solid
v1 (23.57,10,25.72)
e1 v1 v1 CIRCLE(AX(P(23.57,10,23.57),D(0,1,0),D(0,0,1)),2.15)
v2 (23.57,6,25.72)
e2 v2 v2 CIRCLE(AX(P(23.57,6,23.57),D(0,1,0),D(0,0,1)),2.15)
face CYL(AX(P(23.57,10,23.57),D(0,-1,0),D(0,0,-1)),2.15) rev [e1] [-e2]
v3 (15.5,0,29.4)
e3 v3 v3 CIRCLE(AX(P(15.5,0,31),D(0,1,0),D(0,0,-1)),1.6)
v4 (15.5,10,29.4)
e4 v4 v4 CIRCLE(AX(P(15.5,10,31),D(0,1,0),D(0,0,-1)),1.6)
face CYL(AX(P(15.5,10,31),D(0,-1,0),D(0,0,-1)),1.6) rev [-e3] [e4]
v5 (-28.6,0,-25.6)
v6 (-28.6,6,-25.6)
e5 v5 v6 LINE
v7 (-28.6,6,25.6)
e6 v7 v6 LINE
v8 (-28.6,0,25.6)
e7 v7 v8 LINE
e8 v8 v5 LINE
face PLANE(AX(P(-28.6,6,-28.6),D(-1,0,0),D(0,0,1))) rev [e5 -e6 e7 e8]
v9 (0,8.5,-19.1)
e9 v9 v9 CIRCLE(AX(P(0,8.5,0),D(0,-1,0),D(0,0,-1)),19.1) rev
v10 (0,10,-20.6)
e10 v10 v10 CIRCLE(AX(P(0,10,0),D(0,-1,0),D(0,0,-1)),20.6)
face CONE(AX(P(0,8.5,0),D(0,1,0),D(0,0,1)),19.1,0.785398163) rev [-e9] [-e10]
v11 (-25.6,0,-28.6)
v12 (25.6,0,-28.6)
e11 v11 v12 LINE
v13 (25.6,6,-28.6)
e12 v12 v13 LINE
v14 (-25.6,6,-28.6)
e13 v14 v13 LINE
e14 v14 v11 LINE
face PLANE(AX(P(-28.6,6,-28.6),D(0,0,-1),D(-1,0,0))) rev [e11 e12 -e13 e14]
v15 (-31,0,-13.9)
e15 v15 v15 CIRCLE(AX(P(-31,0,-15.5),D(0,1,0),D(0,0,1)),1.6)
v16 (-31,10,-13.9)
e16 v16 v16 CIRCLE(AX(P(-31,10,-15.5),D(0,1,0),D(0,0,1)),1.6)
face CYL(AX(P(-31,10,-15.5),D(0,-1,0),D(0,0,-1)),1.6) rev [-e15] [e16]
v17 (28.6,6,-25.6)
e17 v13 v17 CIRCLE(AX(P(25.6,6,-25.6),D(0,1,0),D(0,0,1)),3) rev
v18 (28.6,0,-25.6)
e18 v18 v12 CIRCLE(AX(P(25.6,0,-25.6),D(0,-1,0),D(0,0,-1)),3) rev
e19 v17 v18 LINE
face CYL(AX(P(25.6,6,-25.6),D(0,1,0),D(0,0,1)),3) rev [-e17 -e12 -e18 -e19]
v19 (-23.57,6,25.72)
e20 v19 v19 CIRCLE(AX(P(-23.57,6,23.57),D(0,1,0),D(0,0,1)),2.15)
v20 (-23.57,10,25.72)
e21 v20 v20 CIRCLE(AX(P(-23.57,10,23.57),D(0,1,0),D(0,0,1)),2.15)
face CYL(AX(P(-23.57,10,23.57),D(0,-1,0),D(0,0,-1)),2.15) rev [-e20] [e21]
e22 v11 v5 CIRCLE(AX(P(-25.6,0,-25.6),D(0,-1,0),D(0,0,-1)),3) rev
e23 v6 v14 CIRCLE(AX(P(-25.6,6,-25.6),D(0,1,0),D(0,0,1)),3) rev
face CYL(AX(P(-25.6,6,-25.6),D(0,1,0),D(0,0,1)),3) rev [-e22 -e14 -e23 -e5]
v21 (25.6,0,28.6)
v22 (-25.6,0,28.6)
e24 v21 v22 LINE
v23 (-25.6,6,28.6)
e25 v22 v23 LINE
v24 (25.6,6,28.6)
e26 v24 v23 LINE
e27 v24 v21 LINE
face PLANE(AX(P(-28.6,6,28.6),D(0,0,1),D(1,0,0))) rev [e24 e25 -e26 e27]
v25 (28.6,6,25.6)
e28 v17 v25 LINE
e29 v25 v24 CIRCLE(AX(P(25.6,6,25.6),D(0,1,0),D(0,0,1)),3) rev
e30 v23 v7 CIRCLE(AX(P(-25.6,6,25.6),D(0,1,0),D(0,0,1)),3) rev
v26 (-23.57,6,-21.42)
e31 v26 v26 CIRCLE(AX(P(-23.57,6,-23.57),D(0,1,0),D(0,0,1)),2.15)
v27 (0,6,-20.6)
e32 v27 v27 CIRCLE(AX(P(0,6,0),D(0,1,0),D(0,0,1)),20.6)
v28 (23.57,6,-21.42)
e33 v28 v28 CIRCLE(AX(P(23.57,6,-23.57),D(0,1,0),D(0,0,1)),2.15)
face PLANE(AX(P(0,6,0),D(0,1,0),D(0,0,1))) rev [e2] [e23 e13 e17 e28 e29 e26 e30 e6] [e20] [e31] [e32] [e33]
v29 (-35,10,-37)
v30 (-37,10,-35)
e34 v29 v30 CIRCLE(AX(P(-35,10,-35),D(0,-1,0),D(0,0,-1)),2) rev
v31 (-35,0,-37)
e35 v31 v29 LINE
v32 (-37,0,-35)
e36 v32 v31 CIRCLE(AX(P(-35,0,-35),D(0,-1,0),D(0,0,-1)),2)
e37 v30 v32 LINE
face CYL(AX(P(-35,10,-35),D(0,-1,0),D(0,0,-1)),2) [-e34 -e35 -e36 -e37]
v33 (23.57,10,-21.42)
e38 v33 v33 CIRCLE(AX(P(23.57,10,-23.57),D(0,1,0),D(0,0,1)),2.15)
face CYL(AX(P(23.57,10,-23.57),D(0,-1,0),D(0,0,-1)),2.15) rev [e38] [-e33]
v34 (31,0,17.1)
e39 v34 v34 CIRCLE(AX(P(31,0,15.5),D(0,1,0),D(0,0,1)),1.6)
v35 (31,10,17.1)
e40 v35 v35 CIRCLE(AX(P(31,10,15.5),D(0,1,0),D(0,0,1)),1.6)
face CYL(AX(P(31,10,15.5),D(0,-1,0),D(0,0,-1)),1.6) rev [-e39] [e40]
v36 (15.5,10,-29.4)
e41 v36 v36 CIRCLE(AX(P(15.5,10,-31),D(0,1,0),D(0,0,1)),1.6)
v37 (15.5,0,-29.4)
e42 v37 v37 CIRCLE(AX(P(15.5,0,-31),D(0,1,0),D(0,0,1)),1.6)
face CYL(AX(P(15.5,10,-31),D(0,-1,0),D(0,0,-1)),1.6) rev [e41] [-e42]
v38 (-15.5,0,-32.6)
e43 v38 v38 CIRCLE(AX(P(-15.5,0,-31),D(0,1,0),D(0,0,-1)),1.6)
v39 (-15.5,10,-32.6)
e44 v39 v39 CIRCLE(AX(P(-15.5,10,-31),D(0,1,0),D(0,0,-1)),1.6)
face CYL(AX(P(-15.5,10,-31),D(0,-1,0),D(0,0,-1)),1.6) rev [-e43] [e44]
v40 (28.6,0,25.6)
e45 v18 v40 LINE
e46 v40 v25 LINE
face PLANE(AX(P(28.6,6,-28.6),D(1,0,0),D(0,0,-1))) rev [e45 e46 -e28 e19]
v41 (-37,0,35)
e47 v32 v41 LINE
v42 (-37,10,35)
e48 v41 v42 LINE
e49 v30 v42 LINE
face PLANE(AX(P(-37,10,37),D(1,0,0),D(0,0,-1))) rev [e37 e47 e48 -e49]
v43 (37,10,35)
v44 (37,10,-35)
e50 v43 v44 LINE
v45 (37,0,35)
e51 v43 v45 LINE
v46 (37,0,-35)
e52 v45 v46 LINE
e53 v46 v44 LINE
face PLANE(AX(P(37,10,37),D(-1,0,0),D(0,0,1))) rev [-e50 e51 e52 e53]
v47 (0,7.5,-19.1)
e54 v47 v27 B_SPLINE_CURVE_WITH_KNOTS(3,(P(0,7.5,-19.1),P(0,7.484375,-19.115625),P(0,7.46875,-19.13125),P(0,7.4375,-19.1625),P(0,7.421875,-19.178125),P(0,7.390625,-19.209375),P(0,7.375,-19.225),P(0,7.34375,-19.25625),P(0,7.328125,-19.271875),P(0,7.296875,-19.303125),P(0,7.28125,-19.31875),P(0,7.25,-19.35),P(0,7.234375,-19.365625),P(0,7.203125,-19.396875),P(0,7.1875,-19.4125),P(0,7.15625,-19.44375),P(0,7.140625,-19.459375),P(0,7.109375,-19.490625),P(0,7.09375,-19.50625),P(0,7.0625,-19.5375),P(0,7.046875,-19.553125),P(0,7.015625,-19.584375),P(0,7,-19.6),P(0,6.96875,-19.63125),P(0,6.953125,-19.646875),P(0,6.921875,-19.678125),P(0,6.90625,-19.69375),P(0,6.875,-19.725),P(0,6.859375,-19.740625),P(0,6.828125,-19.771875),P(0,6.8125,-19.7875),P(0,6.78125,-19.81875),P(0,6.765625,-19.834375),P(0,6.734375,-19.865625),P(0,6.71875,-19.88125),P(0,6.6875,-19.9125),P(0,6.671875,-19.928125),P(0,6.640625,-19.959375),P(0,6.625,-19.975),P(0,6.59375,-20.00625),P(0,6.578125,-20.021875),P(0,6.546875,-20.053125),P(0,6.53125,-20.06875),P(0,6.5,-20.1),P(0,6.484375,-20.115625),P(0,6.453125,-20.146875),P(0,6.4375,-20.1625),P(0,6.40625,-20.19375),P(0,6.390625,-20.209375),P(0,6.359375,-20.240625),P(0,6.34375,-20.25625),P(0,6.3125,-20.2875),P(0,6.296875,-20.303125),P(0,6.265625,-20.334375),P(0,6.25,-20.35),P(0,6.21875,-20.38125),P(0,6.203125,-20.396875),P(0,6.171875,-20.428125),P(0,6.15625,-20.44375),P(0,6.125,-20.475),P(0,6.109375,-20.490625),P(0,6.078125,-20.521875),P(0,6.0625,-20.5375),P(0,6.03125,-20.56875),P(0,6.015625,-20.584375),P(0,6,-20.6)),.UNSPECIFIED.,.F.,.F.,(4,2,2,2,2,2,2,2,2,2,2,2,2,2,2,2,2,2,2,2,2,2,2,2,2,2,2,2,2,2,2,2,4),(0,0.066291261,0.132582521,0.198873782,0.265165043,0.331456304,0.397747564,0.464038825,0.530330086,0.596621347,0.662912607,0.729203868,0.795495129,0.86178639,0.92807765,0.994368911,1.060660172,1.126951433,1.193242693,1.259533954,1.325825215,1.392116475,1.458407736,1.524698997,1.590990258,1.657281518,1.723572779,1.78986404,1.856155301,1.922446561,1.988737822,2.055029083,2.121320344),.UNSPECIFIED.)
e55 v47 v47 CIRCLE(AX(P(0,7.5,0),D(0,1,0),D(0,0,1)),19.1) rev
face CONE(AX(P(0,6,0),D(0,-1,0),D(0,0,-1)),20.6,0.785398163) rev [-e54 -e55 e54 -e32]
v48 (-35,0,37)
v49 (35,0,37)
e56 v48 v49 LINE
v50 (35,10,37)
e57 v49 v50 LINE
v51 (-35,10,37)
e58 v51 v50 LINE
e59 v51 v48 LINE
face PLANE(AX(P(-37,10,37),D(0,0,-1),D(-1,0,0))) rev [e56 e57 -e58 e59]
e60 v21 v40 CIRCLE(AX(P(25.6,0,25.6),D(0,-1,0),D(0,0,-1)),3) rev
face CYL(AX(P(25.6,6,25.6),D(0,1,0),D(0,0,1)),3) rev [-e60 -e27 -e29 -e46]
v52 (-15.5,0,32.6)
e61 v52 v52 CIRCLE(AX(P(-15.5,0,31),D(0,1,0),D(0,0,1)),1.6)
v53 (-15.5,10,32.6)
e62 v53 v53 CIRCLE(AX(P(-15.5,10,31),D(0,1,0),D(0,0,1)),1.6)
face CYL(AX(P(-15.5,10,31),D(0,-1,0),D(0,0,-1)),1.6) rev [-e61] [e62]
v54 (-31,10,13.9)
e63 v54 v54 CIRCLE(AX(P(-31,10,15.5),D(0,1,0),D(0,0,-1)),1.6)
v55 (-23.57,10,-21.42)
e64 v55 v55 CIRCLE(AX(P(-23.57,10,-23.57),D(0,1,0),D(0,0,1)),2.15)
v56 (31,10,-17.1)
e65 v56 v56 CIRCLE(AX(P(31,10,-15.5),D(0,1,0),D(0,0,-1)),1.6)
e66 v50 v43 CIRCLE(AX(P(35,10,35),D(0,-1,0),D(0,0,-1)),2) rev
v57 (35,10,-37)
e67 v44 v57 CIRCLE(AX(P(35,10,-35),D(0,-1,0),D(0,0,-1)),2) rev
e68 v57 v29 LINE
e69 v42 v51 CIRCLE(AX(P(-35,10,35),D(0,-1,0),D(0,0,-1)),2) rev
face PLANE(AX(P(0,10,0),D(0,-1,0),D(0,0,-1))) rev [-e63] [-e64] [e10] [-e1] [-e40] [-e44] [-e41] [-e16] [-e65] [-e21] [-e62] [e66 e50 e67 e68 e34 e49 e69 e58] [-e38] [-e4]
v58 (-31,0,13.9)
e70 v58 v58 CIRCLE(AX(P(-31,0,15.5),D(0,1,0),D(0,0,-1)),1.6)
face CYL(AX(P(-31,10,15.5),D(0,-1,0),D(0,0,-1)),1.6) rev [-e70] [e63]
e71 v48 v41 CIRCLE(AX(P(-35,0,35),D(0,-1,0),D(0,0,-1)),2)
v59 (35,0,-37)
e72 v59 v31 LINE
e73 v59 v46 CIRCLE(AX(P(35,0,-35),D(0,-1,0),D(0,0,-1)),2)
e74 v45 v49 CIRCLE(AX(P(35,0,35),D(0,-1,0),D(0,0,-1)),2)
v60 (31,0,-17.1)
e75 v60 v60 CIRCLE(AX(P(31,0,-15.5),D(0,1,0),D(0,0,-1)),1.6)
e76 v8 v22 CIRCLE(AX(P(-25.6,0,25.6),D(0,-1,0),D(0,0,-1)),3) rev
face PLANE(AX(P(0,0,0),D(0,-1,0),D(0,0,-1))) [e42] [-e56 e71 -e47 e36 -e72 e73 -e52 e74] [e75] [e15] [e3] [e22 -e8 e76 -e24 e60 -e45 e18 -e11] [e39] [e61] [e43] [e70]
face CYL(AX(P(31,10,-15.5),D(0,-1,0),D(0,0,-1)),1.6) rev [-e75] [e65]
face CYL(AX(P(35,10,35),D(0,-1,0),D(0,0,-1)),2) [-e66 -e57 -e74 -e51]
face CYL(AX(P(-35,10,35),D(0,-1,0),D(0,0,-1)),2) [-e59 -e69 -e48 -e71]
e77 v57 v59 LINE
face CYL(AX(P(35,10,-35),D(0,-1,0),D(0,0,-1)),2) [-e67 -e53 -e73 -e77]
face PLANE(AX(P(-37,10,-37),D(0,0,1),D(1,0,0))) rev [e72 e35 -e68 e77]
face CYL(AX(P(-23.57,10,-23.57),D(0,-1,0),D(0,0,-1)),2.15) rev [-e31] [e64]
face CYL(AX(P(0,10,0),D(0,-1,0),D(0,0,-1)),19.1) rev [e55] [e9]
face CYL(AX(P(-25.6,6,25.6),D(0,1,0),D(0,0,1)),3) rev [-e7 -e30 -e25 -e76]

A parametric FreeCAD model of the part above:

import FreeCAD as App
import Part
import Sketcher

V = App.Vector
Q = App.Units.Quantity


def edges_at(feature, points):
    """Names of the edges that pass closest to the given points."""
    edges = feature.Shape.Edges
    near = lambda p: min(range(len(edges)), key=lambda i: edges[i].distToShape(Part.Vertex(*p))[0])
    return sorted({f"Edge{near(p) + 1}" for p in points})


def add_polygon(sketch, points):
    """Adds a closed chain of lines whose ends are joined by coincident constraints."""
    first, n = sketch.GeometryCount, len(points)
    for a, b in zip(points, points[1:] + points[:1]):
        sketch.addGeometry(Part.LineSegment(App.Vector(*a, 0), App.Vector(*b, 0)), False)
    for i in range(n):
        sketch.addConstraint(Sketcher.Constraint("Coincident", first + i, 2, first + (i + 1) % n, 1))

doc = App.newDocument("Part")
body = doc.addObject("PartDesign::Body", "Body")

# Sketch on XZ plane
sketch1 = body.newObject("Sketcher::SketchObject", "Sketch")
sketch1.AttachmentSupport = (doc.getObject("XZ_Plane"), [""])
sketch1.MapMode = "FlatFace"
add_polygon(sketch1, [(-37, -37), (-37, 37), (37, 37), (37, -37)])  # lines 0-3
sketch1.addGeometry(Part.Circle(V(-23.6, 23.6, 0), V(0, 0, 1), 2.1), False)  # 4
sketch1.addGeometry(Part.Circle(V(-15.5, 31, 0), V(0, 0, 1), 1.6), False)  # 5
sketch1.addGeometry(Part.Circle(V(-31, 15.5, 0), V(0, 0, 1), 1.6), False)  # 6
sketch1.addGeometry(Part.Circle(V(15.5, 31, 0), V(0, 0, 1), 1.6), False)  # 7
sketch1.addGeometry(Part.Circle(V(23.6, 23.6, 0), V(0, 0, 1), 2.1), False)  # 8
sketch1.addGeometry(Part.Circle(V(31, 15.5, 0), V(0, 0, 1), 1.6), False)  # 9
sketch1.addGeometry(Part.Circle(V(-31, -15.5, 0), V(0, 0, 1), 1.6), False)  # 10
sketch1.addGeometry(Part.Circle(V(-23.6, -23.6, 0), V(0, 0, 1), 2.1), False)  # 11
sketch1.addGeometry(Part.Circle(V(-15.5, -31, 0), V(0, 0, 1), 1.6), False)  # 12
sketch1.addGeometry(Part.Circle(V(0, 0, 0), V(0, 0, 1), 19.1), False)  # 13
sketch1.addGeometry(Part.Circle(V(31, -15.5, 0), V(0, 0, 1), 1.6), False)  # 14
sketch1.addGeometry(Part.Circle(V(15.5, -31, 0), V(0, 0, 1), 1.6), False)  # 15
sketch1.addGeometry(Part.Circle(V(23.6, -23.6, 0), V(0, 0, 1), 2.1), False)  # 16
sketch1.addConstraint([
    Sketcher.Constraint("Vertical", 0),
    Sketcher.Constraint("Horizontal", 1),
    Sketcher.Constraint("Vertical", 2),
    Sketcher.Constraint("Horizontal", 3),
    Sketcher.Constraint("Coincident", 13, 3, -1, 1),
    Sketcher.Constraint("Equal", 5, 6),
    Sketcher.Constraint("Equal", 6, 7),
    Sketcher.Constraint("Equal", 4, 8),
    Sketcher.Constraint("Equal", 7, 9),
    Sketcher.Constraint("Equal", 9, 10),
    Sketcher.Constraint("Equal", 8, 11),
    Sketcher.Constraint("Equal", 10, 12),
    Sketcher.Constraint("Equal", 12, 14),
    Sketcher.Constraint("Equal", 14, 15),
    Sketcher.Constraint("Equal", 11, 16),
    Sketcher.Constraint("Symmetric", 9, 3, 10, 3, -1, 1),
    Sketcher.Constraint("Symmetric", 8, 3, 11, 3, -1, 1),
    Sketcher.Constraint("Symmetric", 7, 3, 12, 3, -1, 1),
    Sketcher.Constraint("Symmetric", 6, 3, 14, 3, -1, 1),
    Sketcher.Constraint("Symmetric", 5, 3, 15, 3, -1, 1),
    Sketcher.Constraint("Symmetric", 4, 3, 16, 3, -1, 1),
    Sketcher.Constraint("Symmetric", 0, 2, 2, 2, -1, 1),
    Sketcher.Constraint("Symmetric", 5, 3, 7, 3, -2),
    Sketcher.Constraint("Symmetric", 4, 3, 8, 3, -2),
    Sketcher.Constraint("Symmetric", 6, 3, 9, 3, -2),
    Sketcher.Constraint("Equal", 3, 0),
    Sketcher.Constraint("Diameter", 4, Q("4.3 mm")),
    Sketcher.Constraint("Diameter", 5, Q("3.2 mm")),
    Sketcher.Constraint("Diameter", 13, Q("38.2 mm")),
    Sketcher.Constraint("DistanceX", 1, 1, 1, 2, Q("74 mm")),
    Sketcher.Constraint("DistanceY", -1, 1, 5, 3, Q("31 mm")),
    Sketcher.Constraint("DistanceX", 6, 3, -1, 1, Q("31 mm")),
    Sketcher.Constraint("DistanceX", 5, 3, 7, 3, Q("31 mm")),
    Sketcher.Constraint("DistanceY", 10, 3, 6, 3, Q("31 mm")),
    Sketcher.Constraint("DistanceX", 4, 3, -1, 1, Q("23.57 mm")),
    Sketcher.Constraint("DistanceY", -1, 1, 4, 3, Q("23.57 mm")),
])
pad1 = body.newObject("PartDesign::Pad", "Pad")
pad1.Profile = sketch1
pad1.Length = 10
pad1.Reversed = True

# Sketch on XZ plane
sketch2 = body.newObject("Sketcher::SketchObject", "Sketch001")
sketch2.AttachmentSupport = (doc.getObject("XZ_Plane"), [""])
sketch2.MapMode = "FlatFace"
add_polygon(sketch2, [(-29, 29), (-29, -29), (29, -29), (29, 29)])  # lines 0-3
sketch2.addConstraint([
    Sketcher.Constraint("Vertical", 0),
    Sketcher.Constraint("Horizontal", 1),
    Sketcher.Constraint("Vertical", 2),
    Sketcher.Constraint("Horizontal", 3),
    Sketcher.Constraint("Symmetric", 0, 2, 2, 2, -1, 1),
    Sketcher.Constraint("Equal", 3, 0),
    Sketcher.Constraint("DistanceX", 1, 1, 1, 2, Q("57.2 mm")),
])
pocket1 = body.newObject("PartDesign::Pocket", "Pocket")
pocket1.Profile = sketch2
pocket1.Length = 6
doc.recompute()

fillet = body.newObject("PartDesign::Fillet", "Fillet")
fillet.Base = (pocket1, edges_at(pocket1, [
    (28.6, 3, 28.6),
    (28.6, 3, -28.6),
    (-28.6, 3, -28.6),
    (-28.6, 3, 28.6),
]))
fillet.Radius = 3
doc.recompute()

chamfer = body.newObject("PartDesign::Chamfer", "Chamfer")
chamfer.Base = (fillet, edges_at(fillet, [(0, 10, -19.1), (0, 6, -19.1)]))
chamfer.Size = 1.5
doc.recompute()

fillet2 = body.newObject("PartDesign::Fillet", "Fillet001")
fillet2.Base = (chamfer, edges_at(chamfer, [
    (37, 5, 37),
    (-37, 5, 37),
    (-37, 5, -37),
    (37, 5, -37),
]))
fillet2.Radius = 2

doc.recompute()
